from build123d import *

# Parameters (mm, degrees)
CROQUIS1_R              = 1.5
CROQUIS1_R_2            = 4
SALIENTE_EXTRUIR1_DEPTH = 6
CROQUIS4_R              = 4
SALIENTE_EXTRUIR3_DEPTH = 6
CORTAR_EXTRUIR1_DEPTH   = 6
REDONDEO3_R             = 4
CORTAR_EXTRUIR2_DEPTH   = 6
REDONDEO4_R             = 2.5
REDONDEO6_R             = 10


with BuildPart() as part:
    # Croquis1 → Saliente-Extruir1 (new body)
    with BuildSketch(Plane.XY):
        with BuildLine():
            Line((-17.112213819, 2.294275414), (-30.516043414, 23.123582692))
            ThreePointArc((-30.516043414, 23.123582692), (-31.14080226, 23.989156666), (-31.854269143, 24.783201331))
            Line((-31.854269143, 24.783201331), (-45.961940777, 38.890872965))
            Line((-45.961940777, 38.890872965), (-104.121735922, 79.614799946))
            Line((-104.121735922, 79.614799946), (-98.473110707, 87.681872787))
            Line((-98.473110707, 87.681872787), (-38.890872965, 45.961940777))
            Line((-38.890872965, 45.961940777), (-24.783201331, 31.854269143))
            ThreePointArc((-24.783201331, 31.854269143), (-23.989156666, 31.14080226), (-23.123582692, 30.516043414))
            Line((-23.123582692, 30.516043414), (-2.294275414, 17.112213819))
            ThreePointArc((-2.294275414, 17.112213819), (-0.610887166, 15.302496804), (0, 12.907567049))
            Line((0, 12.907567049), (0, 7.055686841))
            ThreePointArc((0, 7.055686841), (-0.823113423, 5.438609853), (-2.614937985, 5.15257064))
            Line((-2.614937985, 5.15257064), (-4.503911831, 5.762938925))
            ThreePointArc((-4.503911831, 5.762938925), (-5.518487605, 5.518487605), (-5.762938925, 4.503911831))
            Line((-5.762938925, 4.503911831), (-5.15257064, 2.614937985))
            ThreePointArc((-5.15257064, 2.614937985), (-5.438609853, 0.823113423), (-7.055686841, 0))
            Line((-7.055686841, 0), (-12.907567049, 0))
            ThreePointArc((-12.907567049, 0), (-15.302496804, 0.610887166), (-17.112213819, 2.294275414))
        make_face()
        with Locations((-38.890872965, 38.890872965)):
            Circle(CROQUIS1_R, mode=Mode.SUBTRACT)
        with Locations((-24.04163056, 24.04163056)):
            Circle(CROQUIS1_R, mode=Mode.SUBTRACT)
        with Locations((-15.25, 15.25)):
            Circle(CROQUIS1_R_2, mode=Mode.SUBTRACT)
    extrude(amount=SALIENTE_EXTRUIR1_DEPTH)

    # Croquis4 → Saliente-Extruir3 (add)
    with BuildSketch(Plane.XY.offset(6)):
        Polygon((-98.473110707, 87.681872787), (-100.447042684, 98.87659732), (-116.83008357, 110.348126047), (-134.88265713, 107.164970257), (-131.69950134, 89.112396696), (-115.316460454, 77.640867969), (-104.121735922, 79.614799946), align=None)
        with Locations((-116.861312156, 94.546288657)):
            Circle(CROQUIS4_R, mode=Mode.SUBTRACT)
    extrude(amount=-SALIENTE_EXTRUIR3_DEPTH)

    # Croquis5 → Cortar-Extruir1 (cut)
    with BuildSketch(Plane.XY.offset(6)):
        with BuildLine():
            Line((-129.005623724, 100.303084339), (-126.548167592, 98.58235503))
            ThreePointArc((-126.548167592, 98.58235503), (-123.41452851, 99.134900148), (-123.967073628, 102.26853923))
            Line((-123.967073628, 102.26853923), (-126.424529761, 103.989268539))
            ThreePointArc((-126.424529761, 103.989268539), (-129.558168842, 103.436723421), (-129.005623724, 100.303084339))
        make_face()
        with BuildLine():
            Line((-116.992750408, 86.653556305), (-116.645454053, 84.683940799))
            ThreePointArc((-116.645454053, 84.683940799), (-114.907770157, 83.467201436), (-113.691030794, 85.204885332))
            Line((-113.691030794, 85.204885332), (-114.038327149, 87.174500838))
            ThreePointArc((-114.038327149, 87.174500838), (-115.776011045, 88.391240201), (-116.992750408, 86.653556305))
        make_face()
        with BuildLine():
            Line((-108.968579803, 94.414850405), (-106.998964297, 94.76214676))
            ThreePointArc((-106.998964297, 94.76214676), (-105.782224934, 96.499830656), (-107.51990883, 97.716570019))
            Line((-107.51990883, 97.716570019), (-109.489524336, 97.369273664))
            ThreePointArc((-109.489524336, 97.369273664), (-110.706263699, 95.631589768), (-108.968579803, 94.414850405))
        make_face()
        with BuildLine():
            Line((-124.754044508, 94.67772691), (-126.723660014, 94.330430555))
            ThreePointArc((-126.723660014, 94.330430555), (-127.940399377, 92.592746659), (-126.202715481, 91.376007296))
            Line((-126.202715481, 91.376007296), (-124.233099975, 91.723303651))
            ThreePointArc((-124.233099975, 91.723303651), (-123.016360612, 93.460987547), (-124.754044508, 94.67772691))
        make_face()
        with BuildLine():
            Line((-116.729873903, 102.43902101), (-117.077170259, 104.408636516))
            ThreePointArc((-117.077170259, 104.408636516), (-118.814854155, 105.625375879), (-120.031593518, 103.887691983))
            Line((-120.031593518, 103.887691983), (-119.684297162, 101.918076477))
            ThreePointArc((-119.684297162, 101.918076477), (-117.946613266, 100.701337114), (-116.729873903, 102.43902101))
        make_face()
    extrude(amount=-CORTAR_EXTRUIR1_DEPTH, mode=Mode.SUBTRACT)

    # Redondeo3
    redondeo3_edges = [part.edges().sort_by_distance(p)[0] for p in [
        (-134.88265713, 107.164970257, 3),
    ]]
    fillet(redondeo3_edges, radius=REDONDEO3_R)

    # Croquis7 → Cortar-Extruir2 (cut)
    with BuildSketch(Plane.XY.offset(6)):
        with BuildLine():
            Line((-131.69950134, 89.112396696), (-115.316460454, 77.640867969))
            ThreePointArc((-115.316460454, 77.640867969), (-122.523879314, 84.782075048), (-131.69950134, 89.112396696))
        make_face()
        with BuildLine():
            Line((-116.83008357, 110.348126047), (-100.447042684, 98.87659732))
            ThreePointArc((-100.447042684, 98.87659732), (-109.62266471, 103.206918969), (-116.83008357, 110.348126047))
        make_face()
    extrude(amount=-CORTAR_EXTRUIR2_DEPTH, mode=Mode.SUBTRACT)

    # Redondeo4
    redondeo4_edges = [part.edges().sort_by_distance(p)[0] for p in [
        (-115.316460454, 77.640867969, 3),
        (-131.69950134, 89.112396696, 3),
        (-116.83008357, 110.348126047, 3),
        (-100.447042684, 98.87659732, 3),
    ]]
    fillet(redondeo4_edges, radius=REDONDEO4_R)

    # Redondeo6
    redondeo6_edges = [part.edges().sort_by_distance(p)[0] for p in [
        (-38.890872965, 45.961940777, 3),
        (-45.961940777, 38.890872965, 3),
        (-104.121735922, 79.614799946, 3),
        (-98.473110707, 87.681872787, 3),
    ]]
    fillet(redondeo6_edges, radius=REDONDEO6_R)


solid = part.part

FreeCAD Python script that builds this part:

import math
import FreeCAD as App
import Part
import Sketcher
from FreeCAD import Vector
Q = App.Units.Quantity


def edges_at(feature, points):
    """Names of the edges that pass closest to the given points."""
    edges = feature.Shape.Edges
    near = lambda p: min(range(len(edges)), key=lambda i: edges[i].distToShape(Part.Vertex(*p))[0])
    return sorted({f"Edge{near(p) + 1}" for p in points})

doc = App.newDocument("Part")
body = doc.addObject("PartDesign::Body", "Body")

# Sketch on XY plane
sketch1 = doc.addObject("Sketcher::SketchObject", "Sketch")
body.addObject(sketch1)
sketch1.AttachmentSupport = (doc.XY_Plane, [""])
sketch1.MapMode = "FlatFace"
sketch1.addGeometry([
    Part.LineSegment(Vector(-30.516043, 23.123583, 0), Vector(-17.112214, 2.294275, 0)),  # 0
    Part.ArcOfCircle(Part.Circle(Vector(-12.907567, 5, 0), Vector(0, 0, 1), 5), math.radians(-147.238388), math.radians(-90)),  # 1
    Part.LineSegment(Vector(-12.907567, 0, 0), Vector(-7.055687, 0, 0)),  # 2
    Part.ArcOfCircle(Part.Circle(Vector(-7.055687, 2, 0), Vector(0, 0, 1), 2), math.radians(-90), math.radians(17.906766)),  # 3
    Part.LineSegment(Vector(-5.152571, 2.614938, 0), Vector(-5.762939, 4.503912, 0)),  # 4
    Part.ArcOfCircle(Part.Circle(Vector(-4.811381, 4.811381, 0), Vector(0, 0, 1), 1), math.radians(72.093234), math.radians(197.906766)),  # 5
    Part.LineSegment(Vector(-4.503912, 5.762939, 0), Vector(-2.614938, 5.152571, 0)),  # 6
    Part.ArcOfCircle(Part.Circle(Vector(-2, 7.055687, 0), Vector(0, 0, 1), 2), math.radians(-107.906766), math.radians(0)),  # 7
    Part.LineSegment(Vector(0, 7.055687, 0), Vector(0, 12.907567, 0)),  # 8
    Part.ArcOfCircle(Part.Circle(Vector(-5, 12.907567, 0), Vector(0, 0, 1), 5), math.radians(0), math.radians(57.238388)),  # 9
    Part.LineSegment(Vector(-2.294275, 17.112214, 0), Vector(-23.123583, 30.516043, 0)),  # 10
    Part.ArcOfCircle(Part.Circle(Vector(-17.712134, 38.925337, 0), Vector(0, 0, 1), 10), math.radians(-135), math.radians(-122.761612)),  # 11
    Part.LineSegment(Vector(-24.783201, 31.854269, 0), Vector(-38.890873, 45.961941, 0)),  # 12
    Part.LineSegment(Vector(-38.890873, 45.961941, 0), Vector(-98.473111, 87.681873, 0)),  # 13
    Part.LineSegment(Vector(-98.473111, 87.681873, 0), Vector(-104.121736, 79.6148, 0)),  # 14
    Part.LineSegment(Vector(-104.121736, 79.6148, 0), Vector(-45.961941, 38.890873, 0)),  # 15
    Part.LineSegment(Vector(-45.961941, 38.890873, 0), Vector(-31.854269, 24.783201, 0)),  # 16
    Part.ArcOfCircle(Part.Circle(Vector(-38.925337, 17.712134, 0), Vector(0, 0, 1), 10), math.radians(32.761612), math.radians(45)),  # 17
    Part.Circle(Vector(-15.25, 15.25, 0), Vector(0, 0, 1), 4),  # 18
    Part.Circle(Vector(-24.041631, 24.041631, 0), Vector(0, 0, 1), 1.5),  # 19
    Part.Circle(Vector(-38.890873, 38.890873, 0), Vector(0, 0, 1), 1.5),  # 20
], False)
sketch1.addConstraint([
    Sketcher.Constraint("Tangent", 0, 2, 1, 1),
    Sketcher.Constraint("Tangent", 1, 2, 2, 1),
    Sketcher.Constraint("Tangent", 2, 2, 3, 1),
    Sketcher.Constraint("Tangent", 3, 2, 4, 1),
    Sketcher.Constraint("Tangent", 4, 2, 5, 2),
    Sketcher.Constraint("Tangent", 5, 1, 6, 1),
    Sketcher.Constraint("Tangent", 6, 2, 7, 1),
    Sketcher.Constraint("Tangent", 7, 2, 8, 1),
    Sketcher.Constraint("Tangent", 8, 2, 9, 1),
    Sketcher.Constraint("Tangent", 9, 2, 10, 1),
    Sketcher.Constraint("Tangent", 10, 2, 11, 2),
    Sketcher.Constraint("Tangent", 11, 1, 12, 1),
    Sketcher.Constraint("Coincident", 12, 2, 13, 1),
    Sketcher.Constraint("Coincident", 13, 2, 14, 1),
    Sketcher.Constraint("Coincident", 14, 2, 15, 1),
    Sketcher.Constraint("Coincident", 15, 2, 16, 1),
    Sketcher.Constraint("Tangent", 16, 2, 17, 2),
    Sketcher.Constraint("Tangent", 17, 1, 0, 1),
    Sketcher.Constraint("Horizontal", 2),
    Sketcher.Constraint("Vertical", 8),
    Sketcher.Constraint("Equal", 3, 7),
    Sketcher.Constraint("Equal", 1, 9),
    Sketcher.Constraint("Equal", 11, 17),
    Sketcher.Constraint("Equal", 19, 20),
    Sketcher.Constraint("PointOnObject", 1, 2, -1),
    Sketcher.Constraint("PointOnObject", 7, 2, -2),
    Sketcher.Constraint("Perpendicular", 13, 14),
    Sketcher.Constraint("Perpendicular", 14, 15),
    Sketcher.Constraint("Parallel", 12, 16),
    Sketcher.Constraint("Horizontal", 20, 3, 15, 2),
    Sketcher.Constraint("Vertical", 20, 3, 12, 2),
    Sketcher.Constraint("Equal", 2, 8),
    Sketcher.Constraint("Equal", 4, 6),
    Sketcher.Constraint("Equal", 0, 10),
    Sketcher.Constraint("Equal", 12, 16),
    Sketcher.Constraint("Diameter", 18, Q("8 mm")),
    Sketcher.Constraint("Diameter", 19, Q("3 mm")),
    Sketcher.Constraint("Radius", 1, Q("5 mm")),
    Sketcher.Constraint("Radius", 3, Q("2 mm")),
    Sketcher.Constraint("Radius", 5, Q("1 mm")),
    Sketcher.Constraint("Radius", 11, Q("10 mm")),
    Sketcher.Constraint("Angle", 12, Q("135 deg")),
    Sketcher.Constraint("Angle", 13, Q("145 deg")),
    Sketcher.Constraint("Distance", 15, Q("71 mm")),
    Sketcher.Constraint("DistanceX", 18, 3, -1, 1, Q("15.25 mm")),
    Sketcher.Constraint("DistanceY", -1, 1, 18, 3, Q("15.25 mm")),
    Sketcher.Constraint("DistanceY", 3, 2, 5, 1, Q("3.148001 mm")),
    Sketcher.Constraint("DistanceX", 4, 2, 6, 2, Q("3.148001 mm")),
    Sketcher.Constraint("DistanceY", 20, 3, 13, 2, Q("48.791 mm")),
    Sketcher.Constraint("DistanceX", 2, 1, 2, 2, Q("5.85188 mm")),
    Sketcher.Constraint("DistanceX", 11, 1, -1, 1, Q("24.783201 mm")),
    Sketcher.Constraint("DistanceY", -1, 1, 14, 2, Q("79.6148 mm")),
    Sketcher.Constraint("DistanceY", -1, 1, 16, 2, Q("24.783201 mm")),
    Sketcher.Constraint("Distance", 0, Q("24.76939 mm")),
    Sketcher.Constraint("DistanceX", 19, 3, -1, 1, Q("24.041631 mm")),
    Sketcher.Constraint("DistanceY", -1, 1, 19, 3, Q("24.041631 mm")),
])
pad1 = doc.addObject("PartDesign::Pad", "Pad")
body.addObject(pad1)
pad1.Profile = sketch1
pad1.Length = 6

# Sketch on XY plane
sketch2 = doc.addObject("Sketcher::SketchObject", "Sketch001")
body.addObject(sketch2)
sketch2.AttachmentSupport = (doc.XY_Plane, [""])
sketch2.MapMode = "FlatFace"
sketch2.AttachmentOffset = App.Placement(Vector(0, 0, 6), App.Rotation())
sketch2.addGeometry([
    Part.LineSegment(Vector(-98.473111, 87.681873, 0), Vector(-100.447043, 98.876597, 0)),  # 0
    Part.LineSegment(Vector(-100.447043, 98.876597, 0), Vector(-116.830084, 110.348126, 0)),  # 1
    Part.LineSegment(Vector(-116.830084, 110.348126, 0), Vector(-134.882657, 107.16497, 0)),  # 2
    Part.LineSegment(Vector(-134.882657, 107.16497, 0), Vector(-131.699501, 89.112397, 0)),  # 3
    Part.LineSegment(Vector(-131.699501, 89.112397, 0), Vector(-115.31646, 77.640868, 0)),  # 4
    Part.LineSegment(Vector(-115.31646, 77.640868, 0), Vector(-104.121736, 79.6148, 0)),  # 5
    Part.LineSegment(Vector(-104.121736, 79.6148, 0), Vector(-98.473111, 87.681873, 0)),  # 6
    Part.Circle(Vector(-116.861312, 94.546289, 0), Vector(0, 0, 1), 4),  # 7
], False)
sketch2.addConstraint([
    Sketcher.Constraint("Coincident", 0, 2, 1, 1),
    Sketcher.Constraint("Coincident", 1, 2, 2, 1),
    Sketcher.Constraint("Coincident", 2, 2, 3, 1),
    Sketcher.Constraint("Coincident", 3, 2, 4, 1),
    Sketcher.Constraint("Coincident", 4, 2, 5, 1),
    Sketcher.Constraint("Coincident", 5, 2, 6, 1),
    Sketcher.Constraint("Coincident", 6, 2, 0, 1),
    Sketcher.Constraint("Perpendicular", 0, 2),
    Sketcher.Constraint("Perpendicular", 2, 3),
    Sketcher.Constraint("Parallel", 1, 4),
    Sketcher.Constraint("Perpendicular", 3, 5),
    Sketcher.Constraint("Perpendicular", 4, 6),
    Sketcher.Constraint("Equal", 2, 3),
    Sketcher.Constraint("Equal", 1, 4),
    Sketcher.Constraint("Equal", 0, 5),
    Sketcher.Constraint("Diameter", 7, Q("8 mm")),
    Sketcher.Constraint("Angle", 0, Q("100 deg")),
    Sketcher.Constraint("Distance", 1, Q("20 mm")),
    Sketcher.Constraint("DistanceX", 3, 2, -1, 1, Q("131.699501 mm")),
    Sketcher.Constraint("DistanceY", -1, 1, 5, 2, Q("79.6148 mm")),
    Sketcher.Constraint("DistanceY", 3, 2, 0, 2, Q("9.764201 mm")),
    Sketcher.Constraint("DistanceX", 7, 3, 6, 2, Q("18.388201 mm")),
    Sketcher.Constraint("Distance", 0, Q("11.367421 mm")),
    Sketcher.Constraint("DistanceY", -1, 1, 7, 3, Q("94.546289 mm")),
])
pad2 = doc.addObject("PartDesign::Pad", "Pad001")
body.addObject(pad2)
pad2.Profile = sketch2
pad2.Length = 6
pad2.Reversed = True

# Sketch on XY plane
sketch3 = doc.addObject("Sketcher::SketchObject", "Sketch002")
body.addObject(sketch3)
sketch3.AttachmentSupport = (doc.XY_Plane, [""])
sketch3.MapMode = "FlatFace"
sketch3.AttachmentOffset = App.Placement(Vector(0, 0, 6), App.Rotation())
sketch3.addGeometry([
    Part.LineSegment(Vector(-129.005624, 100.303084, 0), Vector(-126.548168, 98.582355, 0)),  # 0
    Part.ArcOfCircle(Part.Circle(Vector(-125.257621, 100.425447, 0), Vector(0, 0, 1), 2.25), math.radians(-125), math.radians(55)),  # 1
    Part.LineSegment(Vector(-123.967074, 102.268539, 0), Vector(-126.42453, 103.989269, 0)),  # 2
    Part.ArcOfCircle(Part.Circle(Vector(-127.715077, 102.146176, 0), Vector(0, 0, 1), 2.25), math.radians(55), math.radians(235)),  # 3
    Part.LineSegment(Vector(-116.99275, 86.653556, 0), Vector(-116.645454, 84.683941, 0)),  # 4
    Part.ArcOfCircle(Part.Circle(Vector(-115.168242, 84.944413, 0), Vector(0, 0, 1), 1.5), math.radians(-170), math.radians(10)),  # 5
    Part.LineSegment(Vector(-113.691031, 85.204885, 0), Vector(-114.038327, 87.174501, 0)),  # 6
    Part.ArcOfCircle(Part.Circle(Vector(-115.515539, 86.914029, 0), Vector(0, 0, 1), 1.5), math.radians(10), math.radians(190)),  # 7
    Part.LineSegment(Vector(-108.96858, 94.41485, 0), Vector(-106.998964, 94.762147, 0)),  # 8
    Part.ArcOfCircle(Part.Circle(Vector(-107.259437, 96.239358, 0), Vector(0, 0, 1), 1.5), math.radians(-80), math.radians(100)),  # 9
    Part.LineSegment(Vector(-107.519909, 97.71657, 0), Vector(-109.489524, 97.369274, 0)),  # 10
    Part.ArcOfCircle(Part.Circle(Vector(-109.229052, 95.892062, 0), Vector(0, 0, 1), 1.5), math.radians(100), math.radians(280)),  # 11
    Part.LineSegment(Vector(-124.754045, 94.677727, 0), Vector(-126.72366, 94.330431, 0)),  # 12
    Part.ArcOfCircle(Part.Circle(Vector(-126.463188, 92.853219, 0), Vector(0, 0, 1), 1.5), math.radians(100), math.radians(280)),  # 13
    Part.LineSegment(Vector(-126.202715, 91.376007, 0), Vector(-124.2331, 91.723304, 0)),  # 14
    Part.ArcOfCircle(Part.Circle(Vector(-124.493572, 93.200515, 0), Vector(0, 0, 1), 1.5), math.radians(-80), math.radians(100)),  # 15
    Part.LineSegment(Vector(-116.729874, 102.439021, 0), Vector(-117.07717, 104.408637, 0)),  # 16
    Part.ArcOfCircle(Part.Circle(Vector(-118.554382, 104.148164, 0), Vector(0, 0, 1), 1.5), math.radians(10), math.radians(190)),  # 17
    Part.LineSegment(Vector(-120.031594, 103.887692, 0), Vector(-119.684297, 101.918076, 0)),  # 18
    Part.ArcOfCircle(Part.Circle(Vector(-118.207086, 102.178549, 0), Vector(0, 0, 1), 1.5), math.radians(-170), math.radians(10)),  # 19
], False)
sketch3.addConstraint([
    Sketcher.Constraint("Tangent", 0, 2, 1, 1),
    Sketcher.Constraint("Tangent", 1, 2, 2, 1),
    Sketcher.Constraint("Tangent", 2, 2, 3, 1),
    Sketcher.Constraint("Tangent", 3, 2, 0, 1),
    Sketcher.Constraint("Tangent", 4, 2, 5, 1),
    Sketcher.Constraint("Tangent", 5, 2, 6, 1),
    Sketcher.Constraint("Tangent", 6, 2, 7, 1),
    Sketcher.Constraint("Tangent", 7, 2, 4, 1),
    Sketcher.Constraint("Tangent", 8, 2, 9, 1),
    Sketcher.Constraint("Tangent", 9, 2, 10, 1),
    Sketcher.Constraint("Tangent", 10, 2, 11, 1),
    Sketcher.Constraint("Tangent", 11, 2, 8, 1),
    Sketcher.Constraint("Tangent", 12, 2, 13, 1),
    Sketcher.Constraint("Tangent", 13, 2, 14, 1),
    Sketcher.Constraint("Tangent", 14, 2, 15, 1),
    Sketcher.Constraint("Tangent", 15, 2, 12, 1),
    Sketcher.Constraint("Tangent", 16, 2, 17, 1),
    Sketcher.Constraint("Tangent", 17, 2, 18, 1),
    Sketcher.Constraint("Tangent", 18, 2, 19, 1),
    Sketcher.Constraint("Tangent", 19, 2, 16, 1),
    Sketcher.Constraint("Equal", 1, 3),
    Sketcher.Constraint("Equal", 5, 7),
    Sketcher.Constraint("Equal", 7, 9),
    Sketcher.Constraint("Equal", 9, 11),
    Sketcher.Constraint("Equal", 11, 13),
    Sketcher.Constraint("Equal", 13, 15),
    Sketcher.Constraint("Equal", 15, 17),
    Sketcher.Constraint("Equal", 17, 19),
    Sketcher.Constraint("Perpendicular", 6, 8),
    Sketcher.Constraint("Parallel", 10, 12),
    Sketcher.Constraint("Perpendicular", 14, 16),
    Sketcher.Constraint("Equal", 6, 8),
    Sketcher.Constraint("Equal", 10, 12),
    Sketcher.Constraint("Equal", 14, 16),
    Sketcher.Constraint("Radius", 5, Q("1.5 mm")),
    Sketcher.Constraint("Angle", 0, Q("-35 deg")),
    Sketcher.Constraint("Angle", 4, Q("-80 deg")),
    Sketcher.Constraint("Radius", 1, Q("2.25 mm")),
    Sketcher.Constraint("Distance", 0, Q("3 mm")),
    Sketcher.Constraint("Distance", 4, Q("2 mm")),
    Sketcher.Constraint("DistanceY", -1, 1, 6, 2, Q("87.174501 mm")),
    Sketcher.Constraint("DistanceX", 14, 2, -1, 1, Q("124.2331 mm")),
    Sketcher.Constraint("DistanceY", 1, 3, 19, 3, Q("1.753102 mm")),
    Sketcher.Constraint("DistanceX", 4, 2, 11, 3, Q("7.416402 mm")),
    Sketcher.Constraint("DistanceX", 1, 3, -1, 1, Q("125.257621 mm")),
    Sketcher.Constraint("DistanceX", 7, 3, -1, 1, Q("115.515539 mm")),
    Sketcher.Constraint("DistanceY", -1, 1, 9, 3, Q("96.239358 mm")),
    Sketcher.Constraint("DistanceY", -1, 1, 13, 3, Q("92.853219 mm")),
    Sketcher.Constraint("DistanceX", 17, 3, -1, 1, Q("118.554382 mm")),
    Sketcher.Constraint("DistanceY", -1, 1, 19, 3, Q("102.178549 mm")),
])
pocket1 = doc.addObject("PartDesign::Pocket", "Pocket")
body.addObject(pocket1)
pocket1.Profile = sketch3
pocket1.Length = 6
doc.recompute()

fillet = doc.addObject("PartDesign::Fillet", "Fillet")
body.addObject(fillet)
fillet.Base = (pocket1, edges_at(pocket1, [(-134.883, 107.165, 3)]))
fillet.Radius = 4

# Sketch on XY plane
sketch4 = doc.addObject("Sketcher::SketchObject", "Sketch003")
body.addObject(sketch4)
sketch4.AttachmentSupport = (doc.XY_Plane, [""])
sketch4.MapMode = "FlatFace"
sketch4.AttachmentOffset = App.Placement(Vector(0, 0, 6), App.Rotation())
sketch4.addGeometry([
    Part.LineSegment(Vector(-131.699501, 89.112397, 0), Vector(-115.31646, 77.640868, 0)),
    Part.ArcOfCircle(Part.Circle(Vector(-139.731172, 60.207514, 0), Vector(0, 0, 1), 30), math.radians(35.528779), math.radians(74.471221)),
    Part.LineSegment(Vector(-100.447043, 98.876597, 0), Vector(-116.830084, 110.348126, 0)),
    Part.ArcOfCircle(Part.Circle(Vector(-92.415372, 127.78148, 0), Vector(0, 0, 1), 30), math.radians(-144.471221), math.radians(-105.528779)),
], False)
sketch4.addConstraint([
    Sketcher.Constraint("Coincident", 0, 1, 1, 2),
    Sketcher.Constraint("Coincident", 1, 1, 0, 2),
    Sketcher.Constraint("Coincident", 2, 1, 3, 2),
    Sketcher.Constraint("Coincident", 3, 1, 2, 2),
    Sketcher.Constraint("Equal", 1, 3),
    Sketcher.Constraint("Parallel", 0, 2),
    Sketcher.Constraint("Equal", 0, 2),
    Sketcher.Constraint("Radius", 1, Q("30 mm")),
    Sketcher.Constraint("Angle", 0, Q("-35 deg")),
    Sketcher.Constraint("Distance", 0, Q("20 mm")),
    Sketcher.Constraint("DistanceX", 0, 1, -1, 1, Q("131.699501 mm")),
    Sketcher.Constraint("DistanceX", 1, 3, 3, 3, Q("47.315801 mm")),
    Sketcher.Constraint("DistanceY", 0, 1, 2, 1, Q("9.764201 mm")),
    Sketcher.Constraint("DistanceY", -1, 1, 3, 3, Q("127.78148 mm")),
])
pocket2 = doc.addObject("PartDesign::Pocket", "Pocket001")
body.addObject(pocket2)
pocket2.Profile = sketch4
pocket2.Length = 6
doc.recompute()

fillet2 = doc.addObject("PartDesign::Fillet", "Fillet001")
body.addObject(fillet2)
fillet2.Base = (pocket2, edges_at(pocket2, [
    (-115.316, 77.641, 3),
    (-131.7, 89.112, 3),
    (-116.83, 110.348, 3),
    (-100.447, 98.877, 3),
]))
fillet2.Radius = 2.5
doc.recompute()

fillet3 = doc.addObject("PartDesign::Fillet", "Fillet002")
body.addObject(fillet3)
fillet3.Base = (fillet2, edges_at(fillet2, [
    (-38.891, 45.962, 3),
    (-45.962, 38.891, 3),
    (-104.122, 79.615, 3),
    (-98.473, 87.682, 3),
]))
fillet3.Radius = 10

doc.recompute()
